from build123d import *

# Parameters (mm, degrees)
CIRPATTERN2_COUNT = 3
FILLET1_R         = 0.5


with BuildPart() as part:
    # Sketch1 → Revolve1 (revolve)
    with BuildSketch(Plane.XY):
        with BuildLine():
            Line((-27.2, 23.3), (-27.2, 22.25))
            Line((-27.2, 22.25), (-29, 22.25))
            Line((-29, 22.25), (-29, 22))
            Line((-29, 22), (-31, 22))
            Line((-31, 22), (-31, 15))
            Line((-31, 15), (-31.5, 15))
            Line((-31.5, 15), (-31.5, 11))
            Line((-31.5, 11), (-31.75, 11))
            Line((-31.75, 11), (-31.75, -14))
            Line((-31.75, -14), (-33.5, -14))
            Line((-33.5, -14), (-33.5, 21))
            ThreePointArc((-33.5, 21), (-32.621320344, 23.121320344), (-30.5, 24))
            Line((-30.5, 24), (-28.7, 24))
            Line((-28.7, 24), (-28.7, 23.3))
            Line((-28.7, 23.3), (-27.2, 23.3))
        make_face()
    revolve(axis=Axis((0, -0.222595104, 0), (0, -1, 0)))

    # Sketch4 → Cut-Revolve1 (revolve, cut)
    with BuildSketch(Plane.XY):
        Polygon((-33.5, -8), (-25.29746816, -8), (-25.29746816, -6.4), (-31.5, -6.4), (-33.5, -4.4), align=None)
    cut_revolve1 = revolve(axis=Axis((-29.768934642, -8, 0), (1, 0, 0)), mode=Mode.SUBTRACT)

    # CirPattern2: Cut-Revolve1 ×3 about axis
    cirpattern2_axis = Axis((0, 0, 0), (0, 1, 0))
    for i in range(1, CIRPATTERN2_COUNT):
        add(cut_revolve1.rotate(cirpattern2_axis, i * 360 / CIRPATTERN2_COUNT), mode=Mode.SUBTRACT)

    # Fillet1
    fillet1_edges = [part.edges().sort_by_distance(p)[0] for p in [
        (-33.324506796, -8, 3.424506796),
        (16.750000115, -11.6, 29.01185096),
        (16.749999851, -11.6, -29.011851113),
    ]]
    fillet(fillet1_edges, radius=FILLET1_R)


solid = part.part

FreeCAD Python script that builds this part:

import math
import FreeCAD as App
import Part
import Sketcher
from FreeCAD import Vector
Q = App.Units.Quantity


def edges_at(feature, points):
    """Names of the edges that pass closest to the given points."""
    edges = feature.Shape.Edges
    near = lambda p: min(range(len(edges)), key=lambda i: edges[i].distToShape(Part.Vertex(*p))[0])
    return sorted({f"Edge{near(p) + 1}" for p in points})

doc = App.newDocument("Part")
body = doc.addObject("PartDesign::Body", "Body")

# Sketch on XY plane
sketch1 = body.newObject("Sketcher::SketchObject", "Sketch")
sketch1.AttachmentSupport = (doc.getObject("XY_Plane"), [""])
sketch1.MapMode = "FlatFace"
sketch1.addGeometry([
    Part.LineSegment(Vector(-27.2, 22.25, 0), Vector(-27.2, 23.3, 0)),  # 0
    Part.LineSegment(Vector(-27.2, 23.3, 0), Vector(-28.7, 23.3, 0)),  # 1
    Part.LineSegment(Vector(-28.7, 23.3, 0), Vector(-28.7, 24, 0)),  # 2
    Part.LineSegment(Vector(-28.7, 24, 0), Vector(-30.5, 24, 0)),  # 3
    Part.ArcOfCircle(Part.Circle(Vector(-30.5, 21, 0), Vector(0, 0, 1), 3), math.radians(90), math.radians(180)),  # 4
    Part.LineSegment(Vector(-33.5, 21, 0), Vector(-33.5, -14, 0)),  # 5
    Part.LineSegment(Vector(-33.5, -14, 0), Vector(-31.75, -14, 0)),  # 6
    Part.LineSegment(Vector(-31.75, -14, 0), Vector(-31.75, 11, 0)),  # 7
    Part.LineSegment(Vector(-31.75, 11, 0), Vector(-31.5, 11, 0)),  # 8
    Part.LineSegment(Vector(-31.5, 11, 0), Vector(-31.5, 15, 0)),  # 9
    Part.LineSegment(Vector(-31.5, 15, 0), Vector(-31, 15, 0)),  # 10
    Part.LineSegment(Vector(-31, 15, 0), Vector(-31, 22, 0)),  # 11
    Part.LineSegment(Vector(-31, 22, 0), Vector(-29, 22, 0)),  # 12
    Part.LineSegment(Vector(-29, 22, 0), Vector(-29, 22.25, 0)),  # 13
    Part.LineSegment(Vector(-29, 22.25, 0), Vector(-27.2, 22.25, 0)),  # 14
], False)
sketch1.addConstraint([
    Sketcher.Constraint("Coincident", 0, 2, 1, 1),
    Sketcher.Constraint("Coincident", 1, 2, 2, 1),
    Sketcher.Constraint("Coincident", 2, 2, 3, 1),
    Sketcher.Constraint("Tangent", 3, 2, 4, 1),
    Sketcher.Constraint("Tangent", 4, 2, 5, 1),
    Sketcher.Constraint("Coincident", 5, 2, 6, 1),
    Sketcher.Constraint("Coincident", 6, 2, 7, 1),
    Sketcher.Constraint("Coincident", 7, 2, 8, 1),
    Sketcher.Constraint("Coincident", 8, 2, 9, 1),
    Sketcher.Constraint("Coincident", 9, 2, 10, 1),
    Sketcher.Constraint("Coincident", 10, 2, 11, 1),
    Sketcher.Constraint("Coincident", 11, 2, 12, 1),
    Sketcher.Constraint("Coincident", 12, 2, 13, 1),
    Sketcher.Constraint("Coincident", 13, 2, 14, 1),
    Sketcher.Constraint("Coincident", 14, 2, 0, 1),
    Sketcher.Constraint("Vertical", 0),
    Sketcher.Constraint("Horizontal", 1),
    Sketcher.Constraint("Vertical", 2),
    Sketcher.Constraint("Horizontal", 3),
    Sketcher.Constraint("Vertical", 5),
    Sketcher.Constraint("Horizontal", 6),
    Sketcher.Constraint("Vertical", 7),
    Sketcher.Constraint("Horizontal", 8),
    Sketcher.Constraint("Vertical", 9),
    Sketcher.Constraint("Horizontal", 10),
    Sketcher.Constraint("Vertical", 11),
    Sketcher.Constraint("Horizontal", 12),
    Sketcher.Constraint("Vertical", 13),
    Sketcher.Constraint("Horizontal", 14),
    Sketcher.Constraint("Equal", 3, 14),
    Sketcher.Constraint("Equal", 8, 13),
    Sketcher.Constraint("Radius", 4, 3.0),
    Sketcher.Constraint("DistanceX", 12, 1, 12, 2, 2.0),
    Sketcher.Constraint("DistanceY", 5, 2, 5, 1, 35.0),
    Sketcher.Constraint("DistanceY", 7, 1, 7, 2, 25.0),
    Sketcher.Constraint("DistanceY", 9, 1, 9, 2, 4.0),
    Sketcher.Constraint("DistanceY", 11, 1, 11, 2, 7.0),
    Sketcher.Constraint("DistanceX", 1, 2, 1, 1, 1.5),
    Sketcher.Constraint("DistanceX", 3, 2, 3, 1, 1.8),
    Sketcher.Constraint("DistanceX", 10, 1, 10, 2, 0.5),
    Sketcher.Constraint("DistanceY", 2, 1, 2, 2, 0.7),
    Sketcher.Constraint("DistanceY", -1, 1, 4, 3, 21.0),
    Sketcher.Constraint("DistanceX", 10, 2, -1, 1, 31.0),
    Sketcher.Constraint("DistanceX", 6, 1, 6, 2, 1.75),
])
revolution = body.newObject("PartDesign::Revolution", "Revolution")
revolution.Profile = sketch1
revolution.ReferenceAxis = (sketch1, ["V_Axis"])
revolution.Angle = 360

# Sketch on XY plane
sketch2 = body.newObject("Sketcher::SketchObject", "Sketch001")
sketch2.AttachmentSupport = (doc.getObject("XY_Plane"), [""])
sketch2.MapMode = "FlatFace"
sketch2.addGeometry([
    Part.LineSegment(Vector(-33.5, -8, 0), Vector(-25.297468, -8, 0)),  # 0
    Part.LineSegment(Vector(-25.297468, -8, 0), Vector(-25.297468, -6.4, 0)),  # 1
    Part.LineSegment(Vector(-25.297468, -6.4, 0), Vector(-31.5, -6.4, 0)),  # 2
    Part.LineSegment(Vector(-31.5, -6.4, 0), Vector(-33.5, -4.4, 0)),  # 3
    Part.LineSegment(Vector(-33.5, -4.4, 0), Vector(-33.5, -8, 0)),  # 4
], False)
sketch2.addGeometry(Part.LineSegment(Vector(-33.5, -8, 0), Vector(-25.297468, -8, 0)), True)  # axis
sketch2.addConstraint([
    Sketcher.Constraint("Coincident", 0, 2, 1, 1),
    Sketcher.Constraint("Coincident", 1, 2, 2, 1),
    Sketcher.Constraint("Coincident", 2, 2, 3, 1),
    Sketcher.Constraint("Coincident", 3, 2, 4, 1),
    Sketcher.Constraint("Coincident", 4, 2, 0, 1),
    Sketcher.Constraint("Horizontal", 0),
    Sketcher.Constraint("Vertical", 1),
    Sketcher.Constraint("Horizontal", 2),
    Sketcher.Constraint("Vertical", 4),
    Sketcher.Constraint("Horizontal", 5),
    Sketcher.Constraint("Coincident", 5, 1, 4, 2),
    Sketcher.Constraint("Vertical", 1, 2, 5, 2),
    Sketcher.Constraint("Angle", 3, Q("135 deg")),
    Sketcher.Constraint("DistanceY", 1, 1, 1, 2, 1.6),
    Sketcher.Constraint("DistanceY", 4, 2, 4, 1, 3.6),
    Sketcher.Constraint("DistanceY", 0, 2, -1, 1, 8.0),
    Sketcher.Constraint("DistanceX", 2, 2, -1, 1, 31.5),
    Sketcher.Constraint("DistanceX", 0, 1, 0, 2, 8.202532),
])
groove = body.newObject("PartDesign::Groove", "Groove")
groove.Profile = sketch2
groove.ReferenceAxis = (sketch2, ["Axis0"])
groove.Angle = 360
doc.recompute()

polarpattern = body.newObject("PartDesign::PolarPattern", "PolarPattern")
polarpattern.Originals = [groove]
polarpattern.Axis = (doc.getObject("Y_Axis"), [""])
polarpattern.Angle = 360
polarpattern.Occurrences = 3
body.Tip = polarpattern
doc.recompute()

fillet = body.newObject("PartDesign::Fillet", "Fillet")
fillet.Base = (polarpattern, edges_at(polarpattern, [(-33.325, -8, 3.425), (16.75, -11.6, 29.012), (16.75, -11.6, -29.012)]))
fillet.Radius = 0.5

doc.recompute()
